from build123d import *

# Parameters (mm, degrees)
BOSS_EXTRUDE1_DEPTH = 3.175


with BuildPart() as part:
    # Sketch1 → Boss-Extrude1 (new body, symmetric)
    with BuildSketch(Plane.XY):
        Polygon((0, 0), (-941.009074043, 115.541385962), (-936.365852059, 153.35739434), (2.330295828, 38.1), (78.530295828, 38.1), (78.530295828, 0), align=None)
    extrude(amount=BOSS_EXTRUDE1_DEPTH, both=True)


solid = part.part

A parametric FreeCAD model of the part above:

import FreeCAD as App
import Part
import Sketcher

V = App.Vector
Q = App.Units.Quantity


def add_polygon(sketch, points):
    """Adds a closed chain of lines whose ends are joined by coincident constraints."""
    first, n = sketch.GeometryCount, len(points)
    for a, b in zip(points, points[1:] + points[:1]):
        sketch.addGeometry(Part.LineSegment(App.Vector(*a, 0), App.Vector(*b, 0)), False)
    for i in range(n):
        sketch.addConstraint(Sketcher.Constraint("Coincident", first + i, 2, first + (i + 1) % n, 1))

doc = App.newDocument("Part")
body = doc.addObject("PartDesign::Body", "Body")

# Sketch on XY plane
sketch1 = body.newObject("Sketcher::SketchObject", "Sketch")
sketch1.AttachmentSupport = (doc.getObject("XY_Plane"), [""])
sketch1.MapMode = "FlatFace"
add_polygon(sketch1, [(-941.009074, 115.541386), (0, 0), (78.530296, 0), (78.530296, 38.1), (2.330296, 38.1), (-936.365852, 153.357394)])  # lines 0-5
sketch1.addConstraint(Sketcher.Constraint("Horizontal", 1))
sketch1.addConstraint(Sketcher.Constraint("Vertical", 2))
sketch1.addConstraint(Sketcher.Constraint("Horizontal", 3))
sketch1.addConstraint(Sketcher.Constraint("Coincident", 0, 2, -1, 1))
sketch1.addConstraint(Sketcher.Constraint("Parallel", 0, 4))
sketch1.addConstraint(Sketcher.Constraint("Perpendicular", 4, 5))
sketch1.addConstraint(Sketcher.Constraint("DistanceX", 3, 2, 3, 1, Q("3 in")))
sketch1.addConstraint(Sketcher.Constraint("DistanceY", 2, 1, 2, 2, Q("1.5 in")))
sketch1.addConstraint(Sketcher.Constraint("Angle", 0, Q("-7 deg")))
sketch1.addConstraint(Sketcher.Constraint("Distance", 5, Q("1.5 in")))
sketch1.addConstraint(Sketcher.Constraint("DistanceX", 5, 2, 3, 2, Q("943.33937 mm")))
pad1 = body.newObject("PartDesign::Pad", "Pad")
pad1.Profile = sketch1
pad1.Length = Q("0.25 in")
pad1.Midplane = True

doc.recompute()
